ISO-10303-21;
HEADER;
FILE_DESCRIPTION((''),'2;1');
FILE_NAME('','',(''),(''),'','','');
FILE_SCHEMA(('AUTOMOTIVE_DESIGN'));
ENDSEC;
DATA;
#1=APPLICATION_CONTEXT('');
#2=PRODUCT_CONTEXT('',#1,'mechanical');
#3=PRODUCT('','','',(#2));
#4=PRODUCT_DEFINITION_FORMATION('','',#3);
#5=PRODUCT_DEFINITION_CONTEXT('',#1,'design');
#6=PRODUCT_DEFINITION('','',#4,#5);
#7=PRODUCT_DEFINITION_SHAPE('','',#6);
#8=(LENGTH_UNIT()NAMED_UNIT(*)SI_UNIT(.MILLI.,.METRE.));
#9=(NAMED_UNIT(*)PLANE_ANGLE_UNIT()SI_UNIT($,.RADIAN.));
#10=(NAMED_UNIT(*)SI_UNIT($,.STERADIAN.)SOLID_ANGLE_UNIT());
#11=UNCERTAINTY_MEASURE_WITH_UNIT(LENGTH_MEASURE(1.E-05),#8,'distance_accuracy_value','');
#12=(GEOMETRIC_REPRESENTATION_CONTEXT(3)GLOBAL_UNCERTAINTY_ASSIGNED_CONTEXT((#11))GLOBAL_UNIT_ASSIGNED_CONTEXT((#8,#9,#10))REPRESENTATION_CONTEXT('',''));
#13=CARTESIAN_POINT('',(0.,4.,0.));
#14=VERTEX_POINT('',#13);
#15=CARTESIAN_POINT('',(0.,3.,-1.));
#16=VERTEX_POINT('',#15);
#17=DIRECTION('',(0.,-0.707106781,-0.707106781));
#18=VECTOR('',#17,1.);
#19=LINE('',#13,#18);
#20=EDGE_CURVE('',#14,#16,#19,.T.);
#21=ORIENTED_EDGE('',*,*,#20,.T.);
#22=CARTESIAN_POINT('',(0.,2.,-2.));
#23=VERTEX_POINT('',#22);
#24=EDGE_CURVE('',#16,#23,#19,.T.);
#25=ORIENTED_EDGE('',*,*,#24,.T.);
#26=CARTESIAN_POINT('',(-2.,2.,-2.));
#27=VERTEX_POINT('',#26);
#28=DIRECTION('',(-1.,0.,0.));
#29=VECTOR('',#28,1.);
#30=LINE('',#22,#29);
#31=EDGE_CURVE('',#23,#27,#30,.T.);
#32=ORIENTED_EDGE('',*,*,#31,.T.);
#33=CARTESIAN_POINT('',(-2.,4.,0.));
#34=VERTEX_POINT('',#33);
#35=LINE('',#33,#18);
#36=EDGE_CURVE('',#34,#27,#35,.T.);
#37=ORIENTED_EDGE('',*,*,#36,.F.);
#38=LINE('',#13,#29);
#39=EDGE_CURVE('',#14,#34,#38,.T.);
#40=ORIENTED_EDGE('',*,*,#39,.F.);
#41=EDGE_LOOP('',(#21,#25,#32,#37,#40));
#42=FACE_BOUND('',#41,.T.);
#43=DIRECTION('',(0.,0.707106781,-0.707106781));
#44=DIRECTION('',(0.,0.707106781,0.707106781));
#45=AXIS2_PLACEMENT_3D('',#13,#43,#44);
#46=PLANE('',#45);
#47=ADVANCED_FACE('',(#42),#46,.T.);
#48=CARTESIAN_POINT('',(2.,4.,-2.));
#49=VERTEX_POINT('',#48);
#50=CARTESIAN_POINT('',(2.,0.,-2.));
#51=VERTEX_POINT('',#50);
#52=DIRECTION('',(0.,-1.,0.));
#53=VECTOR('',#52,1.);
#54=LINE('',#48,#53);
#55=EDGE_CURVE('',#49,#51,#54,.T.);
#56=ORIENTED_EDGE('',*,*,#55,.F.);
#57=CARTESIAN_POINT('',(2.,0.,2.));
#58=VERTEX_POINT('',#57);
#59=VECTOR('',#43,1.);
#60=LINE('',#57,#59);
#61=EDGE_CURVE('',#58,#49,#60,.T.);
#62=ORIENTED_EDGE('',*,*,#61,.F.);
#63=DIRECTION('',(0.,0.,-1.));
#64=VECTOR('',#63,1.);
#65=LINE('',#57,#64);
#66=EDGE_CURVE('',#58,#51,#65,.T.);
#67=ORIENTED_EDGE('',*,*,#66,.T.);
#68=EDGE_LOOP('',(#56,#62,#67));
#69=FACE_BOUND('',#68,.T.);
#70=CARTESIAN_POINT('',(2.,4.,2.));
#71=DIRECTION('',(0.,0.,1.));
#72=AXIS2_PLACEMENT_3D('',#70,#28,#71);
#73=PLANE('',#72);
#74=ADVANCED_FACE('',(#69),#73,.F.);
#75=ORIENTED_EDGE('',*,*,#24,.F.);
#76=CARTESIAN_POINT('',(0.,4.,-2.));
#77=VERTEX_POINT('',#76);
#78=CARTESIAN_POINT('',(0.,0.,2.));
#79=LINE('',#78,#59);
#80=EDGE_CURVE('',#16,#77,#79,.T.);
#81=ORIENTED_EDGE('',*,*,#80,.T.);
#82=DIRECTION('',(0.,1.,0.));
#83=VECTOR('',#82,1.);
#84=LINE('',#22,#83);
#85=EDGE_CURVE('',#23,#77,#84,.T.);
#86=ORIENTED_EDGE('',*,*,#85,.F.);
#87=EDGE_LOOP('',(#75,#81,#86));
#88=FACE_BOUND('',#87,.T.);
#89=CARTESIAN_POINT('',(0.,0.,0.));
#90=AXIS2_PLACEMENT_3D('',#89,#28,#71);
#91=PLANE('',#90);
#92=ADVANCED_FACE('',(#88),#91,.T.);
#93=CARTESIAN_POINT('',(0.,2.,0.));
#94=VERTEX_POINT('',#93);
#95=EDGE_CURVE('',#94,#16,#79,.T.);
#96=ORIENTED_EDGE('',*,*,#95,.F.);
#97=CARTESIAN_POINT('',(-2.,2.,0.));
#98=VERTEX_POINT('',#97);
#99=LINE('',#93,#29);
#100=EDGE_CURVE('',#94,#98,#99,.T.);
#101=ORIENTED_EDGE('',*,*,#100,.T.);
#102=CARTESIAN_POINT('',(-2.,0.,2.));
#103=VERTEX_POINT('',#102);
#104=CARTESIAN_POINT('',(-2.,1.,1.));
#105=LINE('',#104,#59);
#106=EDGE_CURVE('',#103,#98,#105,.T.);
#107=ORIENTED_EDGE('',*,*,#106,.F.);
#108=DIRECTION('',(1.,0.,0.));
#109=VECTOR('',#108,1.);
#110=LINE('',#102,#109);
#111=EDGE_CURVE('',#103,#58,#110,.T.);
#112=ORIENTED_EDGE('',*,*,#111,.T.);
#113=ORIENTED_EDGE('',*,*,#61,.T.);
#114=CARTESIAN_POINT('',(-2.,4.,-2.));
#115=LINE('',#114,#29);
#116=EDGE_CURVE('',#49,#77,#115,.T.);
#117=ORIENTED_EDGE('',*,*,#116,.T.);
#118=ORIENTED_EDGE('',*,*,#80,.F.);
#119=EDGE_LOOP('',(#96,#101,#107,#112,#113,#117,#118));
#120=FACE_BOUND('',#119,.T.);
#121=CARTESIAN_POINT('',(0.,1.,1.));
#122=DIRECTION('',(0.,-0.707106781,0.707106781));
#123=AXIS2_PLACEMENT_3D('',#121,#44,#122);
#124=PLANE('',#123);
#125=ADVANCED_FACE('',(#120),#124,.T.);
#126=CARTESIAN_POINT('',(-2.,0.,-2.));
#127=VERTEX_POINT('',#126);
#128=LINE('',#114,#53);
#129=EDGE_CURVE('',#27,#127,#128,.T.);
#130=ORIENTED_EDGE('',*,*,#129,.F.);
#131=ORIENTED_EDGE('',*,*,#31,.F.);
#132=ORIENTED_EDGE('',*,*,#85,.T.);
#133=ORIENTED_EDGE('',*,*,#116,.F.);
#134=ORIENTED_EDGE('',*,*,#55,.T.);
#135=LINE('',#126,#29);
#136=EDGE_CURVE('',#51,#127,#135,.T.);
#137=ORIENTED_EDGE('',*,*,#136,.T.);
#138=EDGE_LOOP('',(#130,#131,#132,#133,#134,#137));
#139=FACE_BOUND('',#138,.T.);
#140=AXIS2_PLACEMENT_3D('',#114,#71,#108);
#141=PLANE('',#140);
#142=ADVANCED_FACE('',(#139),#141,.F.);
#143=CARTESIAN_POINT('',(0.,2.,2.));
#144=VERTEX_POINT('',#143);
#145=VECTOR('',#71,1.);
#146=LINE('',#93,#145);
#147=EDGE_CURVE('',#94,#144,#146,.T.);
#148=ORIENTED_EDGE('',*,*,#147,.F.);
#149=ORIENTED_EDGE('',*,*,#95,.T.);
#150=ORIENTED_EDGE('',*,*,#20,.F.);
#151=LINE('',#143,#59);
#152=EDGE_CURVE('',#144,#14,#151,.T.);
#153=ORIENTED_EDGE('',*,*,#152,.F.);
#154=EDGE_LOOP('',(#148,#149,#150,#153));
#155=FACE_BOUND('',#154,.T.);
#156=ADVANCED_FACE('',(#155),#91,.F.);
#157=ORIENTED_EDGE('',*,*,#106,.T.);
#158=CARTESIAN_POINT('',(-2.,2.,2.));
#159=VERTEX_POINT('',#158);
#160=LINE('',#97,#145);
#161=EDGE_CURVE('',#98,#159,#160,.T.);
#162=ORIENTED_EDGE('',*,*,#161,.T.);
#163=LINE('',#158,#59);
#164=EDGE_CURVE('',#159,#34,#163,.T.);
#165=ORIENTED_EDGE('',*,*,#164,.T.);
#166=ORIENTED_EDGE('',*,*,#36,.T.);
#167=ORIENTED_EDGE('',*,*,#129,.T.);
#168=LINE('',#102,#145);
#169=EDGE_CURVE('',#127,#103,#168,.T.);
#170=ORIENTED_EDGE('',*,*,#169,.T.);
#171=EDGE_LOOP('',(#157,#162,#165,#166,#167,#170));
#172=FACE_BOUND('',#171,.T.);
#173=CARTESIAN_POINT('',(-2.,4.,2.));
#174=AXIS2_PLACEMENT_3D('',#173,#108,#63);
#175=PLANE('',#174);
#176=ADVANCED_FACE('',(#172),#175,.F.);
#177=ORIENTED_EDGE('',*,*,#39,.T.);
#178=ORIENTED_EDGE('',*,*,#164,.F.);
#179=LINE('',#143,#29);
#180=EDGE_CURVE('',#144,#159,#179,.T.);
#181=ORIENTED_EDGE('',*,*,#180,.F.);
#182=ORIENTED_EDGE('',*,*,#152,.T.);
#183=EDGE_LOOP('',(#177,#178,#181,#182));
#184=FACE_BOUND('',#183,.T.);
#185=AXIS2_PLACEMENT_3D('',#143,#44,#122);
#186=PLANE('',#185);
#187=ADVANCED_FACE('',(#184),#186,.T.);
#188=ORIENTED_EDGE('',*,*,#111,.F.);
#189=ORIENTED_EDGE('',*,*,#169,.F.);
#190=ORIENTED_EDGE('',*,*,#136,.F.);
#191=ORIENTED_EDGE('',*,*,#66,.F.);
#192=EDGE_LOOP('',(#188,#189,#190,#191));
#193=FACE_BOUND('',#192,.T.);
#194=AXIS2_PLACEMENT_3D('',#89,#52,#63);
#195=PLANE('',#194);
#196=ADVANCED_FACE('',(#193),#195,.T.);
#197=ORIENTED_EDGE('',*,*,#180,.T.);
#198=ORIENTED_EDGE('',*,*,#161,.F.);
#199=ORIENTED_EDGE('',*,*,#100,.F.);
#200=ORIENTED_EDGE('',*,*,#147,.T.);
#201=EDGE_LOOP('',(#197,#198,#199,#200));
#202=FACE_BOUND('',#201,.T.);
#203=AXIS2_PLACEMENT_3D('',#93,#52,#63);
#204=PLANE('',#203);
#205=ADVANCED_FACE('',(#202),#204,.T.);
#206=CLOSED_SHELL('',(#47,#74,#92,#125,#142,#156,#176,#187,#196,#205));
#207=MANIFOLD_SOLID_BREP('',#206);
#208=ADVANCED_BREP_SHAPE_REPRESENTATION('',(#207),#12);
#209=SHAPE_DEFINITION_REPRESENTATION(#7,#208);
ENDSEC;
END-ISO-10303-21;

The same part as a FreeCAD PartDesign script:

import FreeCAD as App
import Part
import Sketcher
from FreeCAD import Vector
Q = App.Units.Quantity


def add_polygon(sketch, points):
    """Adds a closed chain of lines whose ends are joined by coincident constraints."""
    first, n = sketch.GeometryCount, len(points)
    for a, b in zip(points, points[1:] + points[:1]):
        sketch.addGeometry(Part.LineSegment(App.Vector(*a, 0), App.Vector(*b, 0)), False)
    for i in range(n):
        sketch.addConstraint(Sketcher.Constraint("Coincident", first + i, 2, first + (i + 1) % n, 1))

doc = App.newDocument("Part")
body = doc.addObject("PartDesign::Body", "Body")

# Sketch on XZ plane
sketch1 = doc.addObject("Sketcher::SketchObject", "Sketch")
body.addObject(sketch1)
sketch1.AttachmentSupport = (doc.XZ_Plane, [""])
sketch1.MapMode = "FlatFace"
add_polygon(sketch1, [(-2, -2), (-2, 2), (2, 2), (2, -2)])  # lines 0-3
sketch1.addConstraint([
    Sketcher.Constraint("Vertical", 0),
    Sketcher.Constraint("Horizontal", 1),
    Sketcher.Constraint("Vertical", 2),
    Sketcher.Constraint("Horizontal", 3),
    Sketcher.Constraint("Symmetric", 0, 2, 2, 2, -1, 1),
    Sketcher.Constraint("Equal", 3, 0),
    Sketcher.Constraint("DistanceX", 1, 1, 1, 2, Q("4 mm")),
])
pad1 = doc.addObject("PartDesign::Pad", "Pad")
body.addObject(pad1)
pad1.Profile = sketch1
pad1.Length = 4
pad1.Reversed = True

# Sketch on YZ plane
sketch2 = doc.addObject("Sketcher::SketchObject", "Sketch001")
body.addObject(sketch2)
sketch2.AttachmentSupport = (doc.YZ_Plane, [""])
sketch2.MapMode = "FlatFace"
sketch2.AttachmentOffset = App.Placement(Vector(0, 0, -2), App.Rotation())
add_polygon(sketch2, [(2, 0), (0, 2), (2, 2)])  # lines 0-2
add_polygon(sketch2, [(4, 0), (2, 2), (4, 2)])  # lines 3-5
add_polygon(sketch2, [(2, -2), (4, 0), (4, -2)])  # lines 6-8
sketch2.addConstraint([
    Sketcher.Constraint("Horizontal", 1),
    Sketcher.Constraint("Vertical", 2),
    Sketcher.Constraint("Horizontal", 4),
    Sketcher.Constraint("Vertical", 5),
    Sketcher.Constraint("Vertical", 7),
    Sketcher.Constraint("Horizontal", 8),
    Sketcher.Constraint("Coincident", 3, 2, 1, 2),
    Sketcher.Constraint("Coincident", 6, 2, 5, 2),
    Sketcher.Constraint("Symmetric", 1, 2, 8, 2, -1),
    Sketcher.Constraint("PointOnObject", 0, 2, -2),
    Sketcher.Constraint("PointOnObject", 2, 2, -1),
    Sketcher.Constraint("PointOnObject", 5, 2, -1),
    Sketcher.Constraint("Parallel", 0, 3),
    Sketcher.Constraint("Perpendicular", 3, 6),
    Sketcher.Constraint("DistanceX", 1, 1, 1, 2, Q("2 mm")),
])
pocket1 = doc.addObject("PartDesign::Pocket", "Pocket")
body.addObject(pocket1)
pocket1.Profile = sketch2
pocket1.Length = 2
pocket1.Reversed = True

# Sketch on YZ plane
sketch3 = doc.addObject("Sketcher::SketchObject", "Sketch002")
body.addObject(sketch3)
sketch3.AttachmentSupport = (doc.YZ_Plane, [""])
sketch3.MapMode = "FlatFace"
sketch3.AttachmentOffset = App.Placement(Vector(0, 0, 2), App.Rotation())
add_polygon(sketch3, [(0, 2), (4, -2), (4.1, 2)])  # lines 0-2
sketch3.addConstraint([
    Sketcher.Constraint("Horizontal", 2),
    Sketcher.Constraint("PointOnObject", 2, 2, -2),
    Sketcher.Constraint("Angle", 0, Q("-45 deg")),
    Sketcher.Constraint("DistanceX", -1, 1, 0, 2, Q("4 mm")),
    Sketcher.Constraint("DistanceY", 0, 2, -1, 1, Q("2 mm")),
    Sketcher.Constraint("DistanceX", 2, 2, 2, 1, Q("4.116557 mm")),
])
pocket2 = doc.addObject("PartDesign::Pocket", "Pocket001")
body.addObject(pocket2)
pocket2.Profile = sketch3
pocket2.Length = 2

doc.recompute()
